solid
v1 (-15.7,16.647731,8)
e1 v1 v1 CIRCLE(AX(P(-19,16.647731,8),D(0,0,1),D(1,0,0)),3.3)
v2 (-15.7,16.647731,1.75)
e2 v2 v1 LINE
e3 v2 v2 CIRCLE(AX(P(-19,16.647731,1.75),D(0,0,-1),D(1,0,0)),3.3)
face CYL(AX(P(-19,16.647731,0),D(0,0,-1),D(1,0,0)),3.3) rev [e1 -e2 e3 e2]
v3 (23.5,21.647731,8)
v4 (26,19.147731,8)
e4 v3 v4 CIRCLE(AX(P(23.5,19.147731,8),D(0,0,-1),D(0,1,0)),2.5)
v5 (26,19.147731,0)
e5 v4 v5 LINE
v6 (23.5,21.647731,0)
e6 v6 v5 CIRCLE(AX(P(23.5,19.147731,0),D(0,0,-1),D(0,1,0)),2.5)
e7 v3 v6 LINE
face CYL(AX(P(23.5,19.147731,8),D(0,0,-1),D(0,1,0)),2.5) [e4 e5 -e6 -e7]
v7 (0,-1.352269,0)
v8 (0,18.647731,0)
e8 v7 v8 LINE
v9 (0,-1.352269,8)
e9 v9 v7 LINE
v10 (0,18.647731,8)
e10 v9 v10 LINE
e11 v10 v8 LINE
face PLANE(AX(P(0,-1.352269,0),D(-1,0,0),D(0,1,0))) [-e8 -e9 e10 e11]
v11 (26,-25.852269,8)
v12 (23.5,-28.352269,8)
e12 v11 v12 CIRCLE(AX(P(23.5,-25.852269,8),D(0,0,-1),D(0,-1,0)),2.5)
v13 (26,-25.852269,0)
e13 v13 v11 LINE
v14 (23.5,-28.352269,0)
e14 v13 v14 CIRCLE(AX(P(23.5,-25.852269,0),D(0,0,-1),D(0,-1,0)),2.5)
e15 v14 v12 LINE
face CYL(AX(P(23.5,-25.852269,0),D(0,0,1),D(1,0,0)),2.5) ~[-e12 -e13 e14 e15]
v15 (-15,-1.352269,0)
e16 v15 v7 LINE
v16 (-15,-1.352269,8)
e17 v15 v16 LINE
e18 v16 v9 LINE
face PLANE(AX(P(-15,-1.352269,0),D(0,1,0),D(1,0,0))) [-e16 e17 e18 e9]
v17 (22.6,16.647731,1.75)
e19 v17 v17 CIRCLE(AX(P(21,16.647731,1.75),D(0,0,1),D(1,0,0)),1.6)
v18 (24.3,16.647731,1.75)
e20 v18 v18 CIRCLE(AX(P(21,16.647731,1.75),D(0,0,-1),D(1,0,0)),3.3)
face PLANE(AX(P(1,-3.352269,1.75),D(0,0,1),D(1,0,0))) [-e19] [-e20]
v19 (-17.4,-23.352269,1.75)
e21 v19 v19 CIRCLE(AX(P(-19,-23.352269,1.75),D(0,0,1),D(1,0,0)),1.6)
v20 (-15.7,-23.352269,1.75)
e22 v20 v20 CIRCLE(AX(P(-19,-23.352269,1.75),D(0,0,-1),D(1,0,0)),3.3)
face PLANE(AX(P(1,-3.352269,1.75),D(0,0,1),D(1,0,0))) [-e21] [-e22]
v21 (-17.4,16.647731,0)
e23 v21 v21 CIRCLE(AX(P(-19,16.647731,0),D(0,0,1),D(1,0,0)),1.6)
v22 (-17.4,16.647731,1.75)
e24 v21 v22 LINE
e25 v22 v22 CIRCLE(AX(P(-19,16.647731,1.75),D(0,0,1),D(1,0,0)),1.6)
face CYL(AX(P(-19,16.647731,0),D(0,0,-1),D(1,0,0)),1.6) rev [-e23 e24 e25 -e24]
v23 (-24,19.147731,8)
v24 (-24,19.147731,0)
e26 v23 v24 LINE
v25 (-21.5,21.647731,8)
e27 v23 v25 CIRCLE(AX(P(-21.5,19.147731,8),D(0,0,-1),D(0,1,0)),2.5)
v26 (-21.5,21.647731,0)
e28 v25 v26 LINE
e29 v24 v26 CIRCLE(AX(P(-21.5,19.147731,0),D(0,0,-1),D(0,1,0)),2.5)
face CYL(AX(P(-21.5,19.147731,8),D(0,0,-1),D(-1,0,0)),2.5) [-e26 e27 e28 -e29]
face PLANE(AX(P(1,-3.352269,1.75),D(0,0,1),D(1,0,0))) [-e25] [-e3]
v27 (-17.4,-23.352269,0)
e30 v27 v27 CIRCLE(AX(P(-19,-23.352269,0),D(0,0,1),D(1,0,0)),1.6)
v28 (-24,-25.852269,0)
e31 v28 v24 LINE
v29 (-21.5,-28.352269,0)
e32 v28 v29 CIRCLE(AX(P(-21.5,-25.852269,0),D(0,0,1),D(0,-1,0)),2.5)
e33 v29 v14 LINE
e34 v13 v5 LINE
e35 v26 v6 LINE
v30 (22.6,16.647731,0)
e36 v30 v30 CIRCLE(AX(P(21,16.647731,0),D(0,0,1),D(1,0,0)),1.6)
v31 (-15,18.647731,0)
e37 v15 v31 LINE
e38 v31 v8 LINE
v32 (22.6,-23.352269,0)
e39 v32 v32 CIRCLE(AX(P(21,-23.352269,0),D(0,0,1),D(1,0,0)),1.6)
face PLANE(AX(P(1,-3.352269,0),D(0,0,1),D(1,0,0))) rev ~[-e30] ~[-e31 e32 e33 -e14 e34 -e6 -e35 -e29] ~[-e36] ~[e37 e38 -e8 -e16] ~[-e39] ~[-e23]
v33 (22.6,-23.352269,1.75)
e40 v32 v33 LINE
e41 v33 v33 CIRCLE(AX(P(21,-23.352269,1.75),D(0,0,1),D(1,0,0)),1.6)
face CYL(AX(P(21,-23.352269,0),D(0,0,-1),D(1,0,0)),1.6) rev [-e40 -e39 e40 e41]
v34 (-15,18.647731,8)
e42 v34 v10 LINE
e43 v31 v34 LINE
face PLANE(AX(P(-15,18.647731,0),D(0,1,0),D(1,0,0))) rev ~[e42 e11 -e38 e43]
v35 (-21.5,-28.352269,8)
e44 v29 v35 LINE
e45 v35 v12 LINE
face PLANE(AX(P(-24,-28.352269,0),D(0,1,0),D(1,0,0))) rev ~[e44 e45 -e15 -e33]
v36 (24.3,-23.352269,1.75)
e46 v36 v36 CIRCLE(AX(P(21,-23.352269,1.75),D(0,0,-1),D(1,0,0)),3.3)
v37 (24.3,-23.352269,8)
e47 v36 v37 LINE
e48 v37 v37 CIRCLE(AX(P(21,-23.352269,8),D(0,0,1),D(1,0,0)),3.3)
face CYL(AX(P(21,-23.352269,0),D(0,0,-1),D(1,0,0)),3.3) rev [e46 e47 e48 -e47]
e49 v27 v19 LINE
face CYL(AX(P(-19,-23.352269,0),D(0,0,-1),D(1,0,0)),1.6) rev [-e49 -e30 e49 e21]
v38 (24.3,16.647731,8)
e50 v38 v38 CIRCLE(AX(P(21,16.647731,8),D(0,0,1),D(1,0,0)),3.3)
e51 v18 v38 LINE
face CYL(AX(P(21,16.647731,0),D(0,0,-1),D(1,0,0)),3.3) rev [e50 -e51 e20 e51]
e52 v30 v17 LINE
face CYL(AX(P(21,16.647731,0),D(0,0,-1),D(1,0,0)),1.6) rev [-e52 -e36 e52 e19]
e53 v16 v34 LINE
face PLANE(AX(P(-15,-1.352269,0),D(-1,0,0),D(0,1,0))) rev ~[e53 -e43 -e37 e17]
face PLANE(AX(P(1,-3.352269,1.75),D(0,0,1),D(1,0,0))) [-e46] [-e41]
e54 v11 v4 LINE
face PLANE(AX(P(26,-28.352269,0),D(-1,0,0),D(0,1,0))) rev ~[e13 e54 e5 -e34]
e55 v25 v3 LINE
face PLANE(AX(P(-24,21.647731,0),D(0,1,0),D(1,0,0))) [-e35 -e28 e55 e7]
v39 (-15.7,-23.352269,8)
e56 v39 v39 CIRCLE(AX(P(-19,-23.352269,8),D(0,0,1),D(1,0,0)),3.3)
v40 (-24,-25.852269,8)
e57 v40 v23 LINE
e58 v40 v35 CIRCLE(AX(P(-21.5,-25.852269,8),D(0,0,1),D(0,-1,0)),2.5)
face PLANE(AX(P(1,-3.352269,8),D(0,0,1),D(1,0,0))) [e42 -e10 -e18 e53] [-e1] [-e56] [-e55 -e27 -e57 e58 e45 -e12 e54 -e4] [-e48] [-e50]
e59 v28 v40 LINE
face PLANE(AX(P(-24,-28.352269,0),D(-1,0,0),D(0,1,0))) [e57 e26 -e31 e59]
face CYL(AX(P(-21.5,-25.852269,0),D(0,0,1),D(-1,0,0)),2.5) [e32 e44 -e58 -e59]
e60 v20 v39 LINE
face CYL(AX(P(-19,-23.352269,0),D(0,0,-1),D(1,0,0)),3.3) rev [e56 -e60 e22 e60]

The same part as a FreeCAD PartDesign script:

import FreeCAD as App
import Part
import Sketcher
from FreeCAD import Vector


def edges_at(feature, points):
    """Names of the edges that pass closest to the given points."""
    edges = feature.Shape.Edges
    near = lambda p: min(range(len(edges)), key=lambda i: edges[i].distToShape(Part.Vertex(*p))[0])
    return sorted({f"Edge{near(p) + 1}" for p in points})

doc = App.newDocument("Part")
params = doc.addObject("Spreadsheet::Sheet", "Params")
for row, (alias, value) in enumerate([
    ("sketch1_diameter", "6.6 mm"),
    ("sketch1_width", "50 mm"),
    ("sketch1_width2", "15 mm"),
    ("sketch1_height", "20 mm"),
    ("pad1_length", "8 mm"),
    ("sketch2_diameter", "3.2 mm"),
    ("sketch2_width", "50 mm"),
    ("sketch2_width2", "15 mm"),
    ("sketch2_height", "20 mm"),
    ("pad2_length", "1.75 mm"),
    ("fillet_radius", "2.5 mm"),
], start=1):
    params.set(f"A{row}", alias)
    params.set(f"B{row}", "=" + value)
    params.setAlias(f"B{row}", alias)

body = doc.addObject("PartDesign::Body", "Body")

sketch1 = body.newObject("Sketcher::SketchObject", "Sketch")
sketch1.AttachmentSupport = (doc.getObject("XY_Plane"), [""])
sketch1.MapMode = "FlatFace"
sketch1.addGeometry([
    Part.LineSegment(Vector(-24, 21.6, 0), Vector(-24, -28.4, 0)),
    Part.LineSegment(Vector(-24, -28.4, 0), Vector(26, -28.4, 0)),
    Part.LineSegment(Vector(26, -28.4, 0), Vector(26, 21.6, 0)),
    Part.LineSegment(Vector(26, 21.6, 0), Vector(-24, 21.6, 0)),
    Part.Circle(Vector(-19, -23.4, 0), Vector(0, 0, 1), 3.3),
    Part.Circle(Vector(21, -23.4, 0), Vector(0, 0, 1), 3.3),
    Part.Circle(Vector(-19, 16.6, 0), Vector(0, 0, 1), 3.3),
    Part.LineSegment(Vector(0, -1.4, 0), Vector(-15, -1.4, 0)),
    Part.LineSegment(Vector(-15, -1.4, 0), Vector(-15, 18.6, 0)),
    Part.LineSegment(Vector(-15, 18.6, 0), Vector(0, 18.6, 0)),
    Part.LineSegment(Vector(0, 18.6, 0), Vector(0, -1.4, 0)),
    Part.Circle(Vector(21, 16.6, 0), Vector(0, 0, 1), 3.3),
], False)
sketch1.addConstraint([
    Sketcher.Constraint("Coincident", 0, 2, 1, 1),
    Sketcher.Constraint("Coincident", 1, 2, 2, 1),
    Sketcher.Constraint("Coincident", 2, 2, 3, 1),
    Sketcher.Constraint("Coincident", 3, 2, 0, 1),
    Sketcher.Constraint("Coincident", 7, 2, 8, 1),
    Sketcher.Constraint("Coincident", 8, 2, 9, 1),
    Sketcher.Constraint("Coincident", 9, 2, 10, 1),
    Sketcher.Constraint("Coincident", 10, 2, 7, 1),
    Sketcher.Constraint("Vertical", 0),
    Sketcher.Constraint("Horizontal", 1),
    Sketcher.Constraint("Vertical", 2),
    Sketcher.Constraint("Horizontal", 3),
    Sketcher.Constraint("Horizontal", 7),
    Sketcher.Constraint("Vertical", 8),
    Sketcher.Constraint("Horizontal", 9),
    Sketcher.Constraint("Vertical", 10),
    Sketcher.Constraint("Equal", 4, 5),
    Sketcher.Constraint("Equal", 5, 6),
    Sketcher.Constraint("Equal", 6, 11),
    Sketcher.Constraint("PointOnObject", 9, 2, -2),
    Sketcher.Constraint("Horizontal", 4, 3, 5, 3),
    Sketcher.Constraint("Horizontal", 6, 3, 11, 3),
    Sketcher.Constraint("Vertical", 4, 3, 6, 3),
    Sketcher.Constraint("Vertical", 5, 3, 11, 3),
    Sketcher.Constraint("Equal", 3, 0),
    Sketcher.Constraint("Diameter", 4, 6.6),
    Sketcher.Constraint("DistanceX", 1, 1, 1, 2, 50.0),
    Sketcher.Constraint("DistanceX", 7, 2, 7, 1, 15.0),
    Sketcher.Constraint("DistanceY", 8, 1, 8, 2, 20.0),
    Sketcher.Constraint("DistanceX", 4, 3, -1, 1, 19.0),
    Sketcher.Constraint("DistanceX", -1, 1, 5, 3, 21.0),
    Sketcher.Constraint("DistanceX", 0, 2, -1, 1, 24.0),
    Sketcher.Constraint("DistanceY", 4, 3, 6, 3, 40.0),
    Sketcher.Constraint("DistanceY", 0, 2, 4, 3, 5.0),
    Sketcher.Constraint("DistanceY", 7, 2, 6, 3, 18.0),
    Sketcher.Constraint("DistanceY", 4, 3, -1, 1, 23.352269),
])
sketch1.setExpression("Constraints[25]", "Params.sketch1_diameter")
sketch1.setExpression("Constraints[26]", "Params.sketch1_width")
sketch1.setExpression("Constraints[27]", "Params.sketch1_width2")
sketch1.setExpression("Constraints[28]", "Params.sketch1_height")
pad1 = body.newObject("PartDesign::Pad", "Pad")
pad1.Profile = sketch1
pad1.setExpression("Length", "Params.pad1_length")

sketch2 = body.newObject("Sketcher::SketchObject", "Sketch001")
sketch2.AttachmentSupport = (doc.getObject("XY_Plane"), [""])
sketch2.MapMode = "FlatFace"
sketch2.addGeometry([
    Part.LineSegment(Vector(-24, 21.6, 0), Vector(-24, -28.4, 0)),
    Part.LineSegment(Vector(-24, -28.4, 0), Vector(26, -28.4, 0)),
    Part.LineSegment(Vector(26, -28.4, 0), Vector(26, 21.6, 0)),
    Part.LineSegment(Vector(26, 21.6, 0), Vector(-24, 21.6, 0)),
    Part.Circle(Vector(-19, -23.4, 0), Vector(0, 0, 1), 1.6),
    Part.Circle(Vector(21, -23.4, 0), Vector(0, 0, 1), 1.6),
    Part.Circle(Vector(-19, 16.6, 0), Vector(0, 0, 1), 1.6),
    Part.LineSegment(Vector(0, -1.4, 0), Vector(-15, -1.4, 0)),
    Part.LineSegment(Vector(-15, -1.4, 0), Vector(-15, 18.6, 0)),
    Part.LineSegment(Vector(-15, 18.6, 0), Vector(0, 18.6, 0)),
    Part.LineSegment(Vector(0, 18.6, 0), Vector(0, -1.4, 0)),
    Part.Circle(Vector(21, 16.6, 0), Vector(0, 0, 1), 1.6),
], False)
sketch2.addConstraint([
    Sketcher.Constraint("Coincident", 0, 2, 1, 1),
    Sketcher.Constraint("Coincident", 1, 2, 2, 1),
    Sketcher.Constraint("Coincident", 2, 2, 3, 1),
    Sketcher.Constraint("Coincident", 3, 2, 0, 1),
    Sketcher.Constraint("Coincident", 7, 2, 8, 1),
    Sketcher.Constraint("Coincident", 8, 2, 9, 1),
    Sketcher.Constraint("Coincident", 9, 2, 10, 1),
    Sketcher.Constraint("Coincident", 10, 2, 7, 1),
    Sketcher.Constraint("Vertical", 0),
    Sketcher.Constraint("Horizontal", 1),
    Sketcher.Constraint("Vertical", 2),
    Sketcher.Constraint("Horizontal", 3),
    Sketcher.Constraint("Horizontal", 7),
    Sketcher.Constraint("Vertical", 8),
    Sketcher.Constraint("Horizontal", 9),
    Sketcher.Constraint("Vertical", 10),
    Sketcher.Constraint("Equal", 4, 5),
    Sketcher.Constraint("Equal", 5, 6),
    Sketcher.Constraint("Equal", 6, 11),
    Sketcher.Constraint("PointOnObject", 9, 2, -2),
    Sketcher.Constraint("Horizontal", 4, 3, 5, 3),
    Sketcher.Constraint("Horizontal", 6, 3, 11, 3),
    Sketcher.Constraint("Vertical", 4, 3, 6, 3),
    Sketcher.Constraint("Vertical", 5, 3, 11, 3),
    Sketcher.Constraint("Equal", 3, 0),
    Sketcher.Constraint("Diameter", 4, 3.2),
    Sketcher.Constraint("DistanceX", 1, 1, 1, 2, 50.0),
    Sketcher.Constraint("DistanceX", 7, 2, 7, 1, 15.0),
    Sketcher.Constraint("DistanceY", 8, 1, 8, 2, 20.0),
    Sketcher.Constraint("DistanceX", 4, 3, -1, 1, 19.0),
    Sketcher.Constraint("DistanceX", -1, 1, 5, 3, 21.0),
    Sketcher.Constraint("DistanceX", 0, 2, -1, 1, 24.0),
    Sketcher.Constraint("DistanceY", 4, 3, 6, 3, 40.0),
    Sketcher.Constraint("DistanceY", 0, 2, 4, 3, 5.0),
    Sketcher.Constraint("DistanceY", 7, 2, 6, 3, 18.0),
    Sketcher.Constraint("DistanceY", 4, 3, -1, 1, 23.352269),
])
sketch2.setExpression("Constraints[25]", "Params.sketch2_diameter")
sketch2.setExpression("Constraints[26]", "Params.sketch2_width")
sketch2.setExpression("Constraints[27]", "Params.sketch2_width2")
sketch2.setExpression("Constraints[28]", "Params.sketch2_height")
pad2 = body.newObject("PartDesign::Pad", "Pad001")
pad2.Profile = sketch2
pad2.setExpression("Length", "Params.pad2_length")
doc.recompute()

fillet = body.newObject("PartDesign::Fillet", "Fillet")
fillet.Base = (pad2, edges_at(pad2, [
    (-24, 21.648, 4),
    (26, 21.648, 4),
    (26, -28.352, 4),
    (-24, -28.352, 4),
]))
fillet.setExpression("Radius", "Params.fillet_radius")

doc.recompute()
